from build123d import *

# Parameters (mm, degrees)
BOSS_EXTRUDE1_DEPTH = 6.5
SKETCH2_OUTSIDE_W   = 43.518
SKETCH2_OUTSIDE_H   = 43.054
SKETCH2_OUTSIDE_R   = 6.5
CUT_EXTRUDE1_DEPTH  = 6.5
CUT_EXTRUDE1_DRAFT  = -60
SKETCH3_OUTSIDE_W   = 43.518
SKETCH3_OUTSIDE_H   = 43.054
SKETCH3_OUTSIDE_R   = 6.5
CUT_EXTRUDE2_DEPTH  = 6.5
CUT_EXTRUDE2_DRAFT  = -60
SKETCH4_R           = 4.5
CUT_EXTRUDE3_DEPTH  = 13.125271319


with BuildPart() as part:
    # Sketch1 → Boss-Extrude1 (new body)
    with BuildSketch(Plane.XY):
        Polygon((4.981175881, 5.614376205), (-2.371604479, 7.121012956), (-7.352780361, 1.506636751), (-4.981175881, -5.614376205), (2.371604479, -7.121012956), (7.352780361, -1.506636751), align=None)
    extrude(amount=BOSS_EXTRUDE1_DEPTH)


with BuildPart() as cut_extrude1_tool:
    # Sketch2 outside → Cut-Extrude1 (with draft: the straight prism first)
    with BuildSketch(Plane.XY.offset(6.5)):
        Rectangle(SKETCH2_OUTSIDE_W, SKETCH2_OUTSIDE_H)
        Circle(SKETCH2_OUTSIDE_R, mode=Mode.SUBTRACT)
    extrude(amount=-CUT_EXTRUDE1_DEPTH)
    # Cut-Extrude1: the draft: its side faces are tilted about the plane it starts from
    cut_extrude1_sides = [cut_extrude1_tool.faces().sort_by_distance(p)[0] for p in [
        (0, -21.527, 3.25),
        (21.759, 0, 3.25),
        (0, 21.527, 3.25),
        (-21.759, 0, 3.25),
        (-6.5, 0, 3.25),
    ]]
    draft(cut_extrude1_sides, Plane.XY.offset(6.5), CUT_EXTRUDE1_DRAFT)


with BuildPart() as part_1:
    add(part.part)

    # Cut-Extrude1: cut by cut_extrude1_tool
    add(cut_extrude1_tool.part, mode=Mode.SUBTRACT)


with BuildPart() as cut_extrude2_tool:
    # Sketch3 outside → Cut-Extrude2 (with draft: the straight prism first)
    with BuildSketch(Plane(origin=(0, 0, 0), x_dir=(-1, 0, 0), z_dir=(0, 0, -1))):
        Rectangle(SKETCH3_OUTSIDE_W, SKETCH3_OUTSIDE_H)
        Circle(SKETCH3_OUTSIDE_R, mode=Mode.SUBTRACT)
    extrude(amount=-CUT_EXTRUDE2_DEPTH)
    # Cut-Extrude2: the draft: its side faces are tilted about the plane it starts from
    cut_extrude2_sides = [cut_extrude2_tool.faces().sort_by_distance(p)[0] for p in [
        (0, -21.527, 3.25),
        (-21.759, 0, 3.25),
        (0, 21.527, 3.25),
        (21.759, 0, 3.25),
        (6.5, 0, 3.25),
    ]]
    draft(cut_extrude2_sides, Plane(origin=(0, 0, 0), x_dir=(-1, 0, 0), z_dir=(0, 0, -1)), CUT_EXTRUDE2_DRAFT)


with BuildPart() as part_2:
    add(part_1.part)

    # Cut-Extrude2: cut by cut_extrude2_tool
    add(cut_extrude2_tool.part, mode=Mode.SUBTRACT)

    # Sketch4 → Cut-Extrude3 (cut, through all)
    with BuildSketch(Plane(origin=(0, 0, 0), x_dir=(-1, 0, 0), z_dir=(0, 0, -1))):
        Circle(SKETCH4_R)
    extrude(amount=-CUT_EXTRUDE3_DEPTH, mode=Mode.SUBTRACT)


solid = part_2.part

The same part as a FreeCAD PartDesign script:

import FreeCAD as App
import Part
import Sketcher

V = App.Vector
Q = App.Units.Quantity


def faces_at(feature, points):
    """Names of the faces that lie closest to the given points."""
    faces = feature.Shape.Faces
    near = lambda p: min(range(len(faces)), key=lambda i: faces[i].distToShape(Part.Vertex(*p))[0])
    return sorted({f"Face{near(p) + 1}" for p in points})

doc = App.newDocument("Part")
body = doc.addObject("PartDesign::Body", "Body")

sketch1 = body.newObject("Sketcher::SketchObject", "Sketch")
sketch1.AttachmentSupport = (doc.getObject("XY_Plane"), [""])
sketch1.MapMode = "FlatFace"
sketch1.addGeometry([
    Part.LineSegment(V(5, 6, 0), V(-2, 7, 0)),
    Part.LineSegment(V(-2, 7, 0), V(-7, 2, 0)),
    Part.LineSegment(V(-7, 2, 0), V(-5, -6, 0)),
    Part.LineSegment(V(-5, -6, 0), V(2, -7, 0)),
    Part.LineSegment(V(2, -7, 0), V(7, -2, 0)),
    Part.LineSegment(V(7, -2, 0), V(5, 6, 0)),
], False)
sketch1.addConstraint([
    Sketcher.Constraint("Coincident", 0, 2, 1, 1),
    Sketcher.Constraint("Coincident", 1, 2, 2, 1),
    Sketcher.Constraint("Coincident", 2, 2, 3, 1),
    Sketcher.Constraint("Coincident", 3, 2, 4, 1),
    Sketcher.Constraint("Coincident", 4, 2, 5, 1),
    Sketcher.Constraint("Coincident", 5, 2, 0, 1),
    Sketcher.Constraint("Symmetric", 0, 2, 3, 2, -1, 1),
    Sketcher.Constraint("Symmetric", 1, 2, 4, 2, -1, 1),
    Sketcher.Constraint("Symmetric", 2, 2, 5, 2, -1, 1),
    Sketcher.Constraint("Equal", 0, 1),
    Sketcher.Constraint("Equal", 1, 2),
    Sketcher.Constraint("Angle", 0, Q("168.419983 deg")),
    Sketcher.Constraint("Angle", 1, Q("-131.580017 deg")),
    Sketcher.Constraint("Angle", 2, Q("-71.580017 deg")),
    Sketcher.Constraint("DistanceX", 1, 2, -1, 1, 7.35278),
])
pad1 = body.newObject("PartDesign::Pad", "Pad")
pad1.Profile = sketch1
pad1.Length = 6.5
body2 = doc.addObject("PartDesign::Body", "Body001")

sketch2 = body2.newObject("Sketcher::SketchObject", "Sketch001")
sketch2.AttachmentSupport = (doc.getObject("XY_Plane001"), [""])
sketch2.MapMode = "FlatFace"
sketch2.AttachmentOffset = App.Placement(V(0, 0, 6.5), App.Rotation())
sketch2.addGeometry([
    Part.LineSegment(V(-22, 22, 0), V(-22, -22, 0)),
    Part.LineSegment(V(-22, -22, 0), V(22, -22, 0)),
    Part.LineSegment(V(22, -22, 0), V(22, 22, 0)),
    Part.LineSegment(V(22, 22, 0), V(-22, 22, 0)),
    Part.Circle(V(0, 0, 0), V(0, 0, 1), 6),
], False)
sketch2.addConstraint([
    Sketcher.Constraint("Coincident", 0, 2, 1, 1),
    Sketcher.Constraint("Coincident", 1, 2, 2, 1),
    Sketcher.Constraint("Coincident", 2, 2, 3, 1),
    Sketcher.Constraint("Coincident", 3, 2, 0, 1),
    Sketcher.Constraint("Vertical", 0),
    Sketcher.Constraint("Horizontal", 1),
    Sketcher.Constraint("Vertical", 2),
    Sketcher.Constraint("Horizontal", 3),
    Sketcher.Constraint("Coincident", 4, 3, -1, 1),
    Sketcher.Constraint("Symmetric", 0, 2, 2, 2, -1, 1),
    Sketcher.Constraint("Diameter", 4, 13.0),
    Sketcher.Constraint("DistanceX", 1, 1, 1, 2, 43.518),
    Sketcher.Constraint("DistanceY", 0, 2, 0, 1, 43.054),
])
pad2 = body2.newObject("PartDesign::Pad", "Pad001")
pad2.Profile = sketch2
pad2.Length = 6.5
pad2.Reversed = True
doc.recompute()

datumplane = body2.newObject("PartDesign::Plane", "DatumPlane")
datumplane.AttachmentSupport = (doc.getObject("XY_Plane001"), [""])
datumplane.MapMode = "FlatFace"
datumplane.AttachmentOffset = App.Placement(V(0, 0, 6.5), App.Rotation())
draft = body2.newObject("PartDesign::Draft", "Draft")
draft.Base = (pad2, faces_at(pad2, [
    (0, -21.527, 3.25),
    (21.759, 0, 3.25),
    (0, 21.527, 3.25),
    (-21.759, 0, 3.25),
    (-6.5, 0, 3.25),
]))
draft.NeutralPlane = (datumplane, [""])
draft.Angle = 60
draft.Reversed = True
doc.recompute()

boolean = body.newObject("PartDesign::Boolean", "Boolean")
boolean.Type = "Cut"
boolean.addObjects([body2])
body3 = doc.addObject("PartDesign::Body", "Body002")

sketch3 = body3.newObject("Sketcher::SketchObject", "Sketch002")
sketch3.AttachmentSupport = (doc.getObject("XY_Plane002"), [""])
sketch3.MapMode = "FlatFace"
sketch3.addGeometry([
    Part.LineSegment(V(22, 22, 0), V(22, -22, 0)),
    Part.LineSegment(V(22, -22, 0), V(-22, -22, 0)),
    Part.LineSegment(V(-22, -22, 0), V(-22, 22, 0)),
    Part.LineSegment(V(-22, 22, 0), V(22, 22, 0)),
    Part.Circle(V(0, 0, 0), V(0, 0, 1), 6),
], False)
sketch3.addConstraint([
    Sketcher.Constraint("Coincident", 0, 2, 1, 1),
    Sketcher.Constraint("Coincident", 1, 2, 2, 1),
    Sketcher.Constraint("Coincident", 2, 2, 3, 1),
    Sketcher.Constraint("Coincident", 3, 2, 0, 1),
    Sketcher.Constraint("Vertical", 0),
    Sketcher.Constraint("Horizontal", 1),
    Sketcher.Constraint("Vertical", 2),
    Sketcher.Constraint("Horizontal", 3),
    Sketcher.Constraint("Coincident", 4, 3, -1, 1),
    Sketcher.Constraint("Symmetric", 0, 2, 2, 2, -1, 1),
    Sketcher.Constraint("Diameter", 4, 13.0),
    Sketcher.Constraint("DistanceX", 1, 2, 1, 1, 43.518),
    Sketcher.Constraint("DistanceY", 0, 2, 0, 1, 43.054),
])
pad3 = body3.newObject("PartDesign::Pad", "Pad002")
pad3.Profile = sketch3
pad3.Length = 6.5
doc.recompute()

draft2 = body3.newObject("PartDesign::Draft", "Draft001")
draft2.Base = (pad3, faces_at(pad3, [
    (0, -21.527, 3.25),
    (-21.759, 0, 3.25),
    (0, 21.527, 3.25),
    (21.759, 0, 3.25),
    (6.5, 0, 3.25),
]))
draft2.NeutralPlane = (doc.getObject("XY_Plane002"), [""])
draft2.Angle = 60
draft2.Reversed = False
doc.recompute()

boolean2 = body.newObject("PartDesign::Boolean", "Boolean001")
boolean2.Type = "Cut"
boolean2.addObjects([body3])

sketch4 = body.newObject("Sketcher::SketchObject", "Sketch003")
sketch4.AttachmentSupport = (doc.getObject("XY_Plane"), [""])
sketch4.MapMode = "FlatFace"
sketch4.addGeometry(Part.Circle(V(0, 0, 0), V(0, 0, 1), 4.5), False)
sketch4.addConstraint([
    Sketcher.Constraint("Coincident", 0, 3, -1, 1),
    Sketcher.Constraint("Diameter", 0, 9.0),
])
pocket1 = body.newObject("PartDesign::Pocket", "Pocket")
pocket1.Profile = sketch4
pocket1.Type = "ThroughAll"
pocket1.Reversed = True

doc.recompute()
